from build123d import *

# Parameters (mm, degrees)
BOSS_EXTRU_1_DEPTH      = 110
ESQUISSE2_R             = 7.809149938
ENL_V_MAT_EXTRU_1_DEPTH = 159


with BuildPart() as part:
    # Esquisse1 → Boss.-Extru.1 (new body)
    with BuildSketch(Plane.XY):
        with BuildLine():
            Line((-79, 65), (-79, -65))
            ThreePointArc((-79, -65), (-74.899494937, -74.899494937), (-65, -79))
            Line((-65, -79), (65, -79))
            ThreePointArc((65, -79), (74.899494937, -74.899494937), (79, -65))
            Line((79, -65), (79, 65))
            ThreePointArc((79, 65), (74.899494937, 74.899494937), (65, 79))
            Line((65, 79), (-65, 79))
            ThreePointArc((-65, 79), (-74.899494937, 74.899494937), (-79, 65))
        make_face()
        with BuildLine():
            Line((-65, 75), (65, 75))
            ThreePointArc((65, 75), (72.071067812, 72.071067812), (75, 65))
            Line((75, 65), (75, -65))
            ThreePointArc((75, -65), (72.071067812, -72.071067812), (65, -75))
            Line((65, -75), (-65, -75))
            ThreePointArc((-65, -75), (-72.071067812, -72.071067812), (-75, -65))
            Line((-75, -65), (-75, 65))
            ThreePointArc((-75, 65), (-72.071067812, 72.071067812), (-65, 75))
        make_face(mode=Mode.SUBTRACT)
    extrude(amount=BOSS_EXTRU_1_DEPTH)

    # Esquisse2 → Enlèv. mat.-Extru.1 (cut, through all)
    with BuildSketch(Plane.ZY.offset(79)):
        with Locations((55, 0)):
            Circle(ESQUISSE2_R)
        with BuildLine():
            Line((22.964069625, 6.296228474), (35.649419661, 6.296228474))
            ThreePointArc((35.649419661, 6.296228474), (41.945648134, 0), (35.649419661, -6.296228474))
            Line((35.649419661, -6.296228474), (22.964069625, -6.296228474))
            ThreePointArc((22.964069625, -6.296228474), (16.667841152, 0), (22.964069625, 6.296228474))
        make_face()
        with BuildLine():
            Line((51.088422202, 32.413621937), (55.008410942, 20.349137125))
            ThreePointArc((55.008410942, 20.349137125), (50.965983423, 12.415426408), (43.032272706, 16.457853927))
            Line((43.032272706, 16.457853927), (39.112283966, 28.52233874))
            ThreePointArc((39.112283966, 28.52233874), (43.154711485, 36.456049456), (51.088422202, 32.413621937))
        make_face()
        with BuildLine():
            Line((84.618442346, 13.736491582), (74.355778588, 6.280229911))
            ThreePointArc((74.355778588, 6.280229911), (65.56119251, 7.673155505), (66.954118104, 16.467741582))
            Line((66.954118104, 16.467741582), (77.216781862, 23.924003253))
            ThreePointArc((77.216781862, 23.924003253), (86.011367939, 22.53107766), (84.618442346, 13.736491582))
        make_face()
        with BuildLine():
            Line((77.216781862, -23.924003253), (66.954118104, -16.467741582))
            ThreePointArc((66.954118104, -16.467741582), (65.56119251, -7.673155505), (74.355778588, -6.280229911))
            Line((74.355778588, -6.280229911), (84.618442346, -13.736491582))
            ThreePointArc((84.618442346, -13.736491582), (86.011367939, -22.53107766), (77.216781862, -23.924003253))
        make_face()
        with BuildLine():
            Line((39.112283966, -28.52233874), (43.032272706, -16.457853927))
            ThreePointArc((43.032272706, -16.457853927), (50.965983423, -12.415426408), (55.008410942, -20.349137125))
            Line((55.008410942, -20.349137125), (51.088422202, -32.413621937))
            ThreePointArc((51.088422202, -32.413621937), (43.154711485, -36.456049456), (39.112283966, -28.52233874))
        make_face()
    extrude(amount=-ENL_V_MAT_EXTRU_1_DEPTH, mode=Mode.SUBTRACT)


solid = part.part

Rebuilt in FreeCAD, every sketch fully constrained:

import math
import FreeCAD as App
import Part
import Sketcher
Q = App.Units.Quantity

doc = App.newDocument("Part")
body = doc.addObject("PartDesign::Body", "Body")

sketch1 = body.newObject("Sketcher::SketchObject", "Sketch")
sketch1.AttachmentSupport = (doc.getObject("XY_Plane"), [""])
sketch1.MapMode = "FlatFace"
sketch1.addGeometry(Part.LineSegment(App.Vector(-79, 65, 0), App.Vector(-79, -65, 0)), False)
sketch1.addGeometry(Part.ArcOfCircle(Part.Circle(App.Vector(-65, -65, 0), App.Vector(0, 0, 1), 14), math.radians(180), math.radians(270)), False)
sketch1.addGeometry(Part.LineSegment(App.Vector(-65, -79, 0), App.Vector(65, -79, 0)), False)
sketch1.addGeometry(Part.ArcOfCircle(Part.Circle(App.Vector(65, -65, 0), App.Vector(0, 0, 1), 14), math.radians(-90), math.radians(0)), False)
sketch1.addGeometry(Part.LineSegment(App.Vector(79, -65, 0), App.Vector(79, 65, 0)), False)
sketch1.addGeometry(Part.ArcOfCircle(Part.Circle(App.Vector(65, 65, 0), App.Vector(0, 0, 1), 14), math.radians(0), math.radians(90)), False)
sketch1.addGeometry(Part.LineSegment(App.Vector(65, 79, 0), App.Vector(-65, 79, 0)), False)
sketch1.addGeometry(Part.ArcOfCircle(Part.Circle(App.Vector(-65, 65, 0), App.Vector(0, 0, 1), 14), math.radians(90), math.radians(180)), False)
sketch1.addGeometry(Part.ArcOfCircle(Part.Circle(App.Vector(-65, 65, 0), App.Vector(0, 0, 1), 10), math.radians(90), math.radians(180)), False)
sketch1.addGeometry(Part.LineSegment(App.Vector(-65, 75, 0), App.Vector(65, 75, 0)), False)
sketch1.addGeometry(Part.ArcOfCircle(Part.Circle(App.Vector(65, 65, 0), App.Vector(0, 0, 1), 10), math.radians(0), math.radians(90)), False)
sketch1.addGeometry(Part.LineSegment(App.Vector(75, 65, 0), App.Vector(75, -65, 0)), False)
sketch1.addGeometry(Part.ArcOfCircle(Part.Circle(App.Vector(65, -65, 0), App.Vector(0, 0, 1), 10), math.radians(-90), math.radians(0)), False)
sketch1.addGeometry(Part.LineSegment(App.Vector(65, -75, 0), App.Vector(-65, -75, 0)), False)
sketch1.addGeometry(Part.ArcOfCircle(Part.Circle(App.Vector(-65, -65, 0), App.Vector(0, 0, 1), 10), math.radians(180), math.radians(270)), False)
sketch1.addGeometry(Part.LineSegment(App.Vector(-75, -65, 0), App.Vector(-75, 65, 0)), False)
sketch1.addConstraint(Sketcher.Constraint("Tangent", 0, 2, 1, 1))
sketch1.addConstraint(Sketcher.Constraint("Tangent", 1, 2, 2, 1))
sketch1.addConstraint(Sketcher.Constraint("Tangent", 2, 2, 3, 1))
sketch1.addConstraint(Sketcher.Constraint("Tangent", 3, 2, 4, 1))
sketch1.addConstraint(Sketcher.Constraint("Tangent", 4, 2, 5, 1))
sketch1.addConstraint(Sketcher.Constraint("Tangent", 5, 2, 6, 1))
sketch1.addConstraint(Sketcher.Constraint("Tangent", 6, 2, 7, 1))
sketch1.addConstraint(Sketcher.Constraint("Tangent", 7, 2, 0, 1))
sketch1.addConstraint(Sketcher.Constraint("Tangent", 8, 1, 9, 1))
sketch1.addConstraint(Sketcher.Constraint("Tangent", 9, 2, 10, 2))
sketch1.addConstraint(Sketcher.Constraint("Tangent", 10, 1, 11, 1))
sketch1.addConstraint(Sketcher.Constraint("Tangent", 11, 2, 12, 2))
sketch1.addConstraint(Sketcher.Constraint("Tangent", 12, 1, 13, 1))
sketch1.addConstraint(Sketcher.Constraint("Tangent", 13, 2, 14, 2))
sketch1.addConstraint(Sketcher.Constraint("Tangent", 14, 1, 15, 1))
sketch1.addConstraint(Sketcher.Constraint("Tangent", 15, 2, 8, 2))
sketch1.addConstraint(Sketcher.Constraint("Vertical", 0))
sketch1.addConstraint(Sketcher.Constraint("Horizontal", 2))
sketch1.addConstraint(Sketcher.Constraint("Vertical", 4))
sketch1.addConstraint(Sketcher.Constraint("Horizontal", 6))
sketch1.addConstraint(Sketcher.Constraint("Horizontal", 9))
sketch1.addConstraint(Sketcher.Constraint("Vertical", 11))
sketch1.addConstraint(Sketcher.Constraint("Horizontal", 13))
sketch1.addConstraint(Sketcher.Constraint("Vertical", 15))
sketch1.addConstraint(Sketcher.Constraint("Coincident", 8, 3, 7, 3))
sketch1.addConstraint(Sketcher.Constraint("Coincident", 10, 3, 5, 3))
sketch1.addConstraint(Sketcher.Constraint("Coincident", 12, 3, 3, 3))
sketch1.addConstraint(Sketcher.Constraint("Equal", 1, 3))
sketch1.addConstraint(Sketcher.Constraint("Equal", 3, 5))
sketch1.addConstraint(Sketcher.Constraint("Equal", 5, 7))
sketch1.addConstraint(Sketcher.Constraint("Equal", 12, 14))
sketch1.addConstraint(Sketcher.Constraint("Symmetric", 1, 3, 5, 3, -1, 1))
sketch1.addConstraint(Sketcher.Constraint("Equal", 13, 0))
sketch1.addConstraint(Sketcher.Constraint("Radius", 1, 14.0))
sketch1.addConstraint(Sketcher.Constraint("Radius", 8, 10.0))
sketch1.addConstraint(Sketcher.Constraint("DistanceX", 2, 1, 2, 2, 130.0))
pad1 = body.newObject("PartDesign::Pad", "Pad")
pad1.Profile = sketch1
pad1.Length = 110

sketch2 = body.newObject("Sketcher::SketchObject", "Sketch001")
sketch2.AttachmentSupport = (doc.getObject("YZ_Plane"), [""])
sketch2.MapMode = "FlatFace"
sketch2.AttachmentOffset = App.Placement(App.Vector(0, 0, -79), App.Rotation())
sketch2.addGeometry(Part.Circle(App.Vector(0, 55, 0), App.Vector(0, 0, 1), 8), False)
sketch2.addGeometry(Part.LineSegment(App.Vector(6, 36, 0), App.Vector(6, 23, 0)), False)
sketch2.addGeometry(Part.ArcOfCircle(Part.Circle(App.Vector(0, 23, 0), App.Vector(0, 0, 1), 6), math.radians(-180), math.radians(0)), False)
sketch2.addGeometry(Part.LineSegment(App.Vector(-6, 23, 0), App.Vector(-6, 36, 0)), False)
sketch2.addGeometry(Part.ArcOfCircle(Part.Circle(App.Vector(0, 36, 0), App.Vector(0, 0, 1), 6), math.radians(0), math.radians(180)), False)
sketch2.addGeometry(Part.LineSegment(App.Vector(20, 55, 0), App.Vector(32, 51, 0)), False)
sketch2.addGeometry(Part.ArcOfCircle(Part.Circle(App.Vector(30, 45, 0), App.Vector(0, 0, 1), 6), math.radians(-108), math.radians(72)), False)
sketch2.addGeometry(Part.LineSegment(App.Vector(29, 39, 0), App.Vector(16, 43, 0)), False)
sketch2.addGeometry(Part.ArcOfCircle(Part.Circle(App.Vector(18, 49, 0), App.Vector(0, 0, 1), 6), math.radians(72), math.radians(252)), False)
sketch2.addGeometry(Part.LineSegment(App.Vector(6, 74, 0), App.Vector(14, 85, 0)), False)
sketch2.addGeometry(Part.ArcOfCircle(Part.Circle(App.Vector(19, 81, 0), App.Vector(0, 0, 1), 6), math.radians(-36), math.radians(144)), False)
sketch2.addGeometry(Part.LineSegment(App.Vector(24, 77, 0), App.Vector(16, 67, 0)), False)
sketch2.addGeometry(Part.ArcOfCircle(Part.Circle(App.Vector(11, 71, 0), App.Vector(0, 0, 1), 6), math.radians(144), math.radians(324)), False)
sketch2.addGeometry(Part.LineSegment(App.Vector(-16, 67, 0), App.Vector(-24, 77, 0)), False)
sketch2.addGeometry(Part.ArcOfCircle(Part.Circle(App.Vector(-19, 81, 0), App.Vector(0, 0, 1), 6), math.radians(36), math.radians(216)), False)
sketch2.addGeometry(Part.LineSegment(App.Vector(-14, 85, 0), App.Vector(-6, 74, 0)), False)
sketch2.addGeometry(Part.ArcOfCircle(Part.Circle(App.Vector(-11, 71, 0), App.Vector(0, 0, 1), 6), math.radians(-144), math.radians(36)), False)
sketch2.addGeometry(Part.LineSegment(App.Vector(-16, 43, 0), App.Vector(-29, 39, 0)), False)
sketch2.addGeometry(Part.ArcOfCircle(Part.Circle(App.Vector(-30, 45, 0), App.Vector(0, 0, 1), 6), math.radians(108), math.radians(288)), False)
sketch2.addGeometry(Part.LineSegment(App.Vector(-32, 51, 0), App.Vector(-20, 55, 0)), False)
sketch2.addGeometry(Part.ArcOfCircle(Part.Circle(App.Vector(-18, 49, 0), App.Vector(0, 0, 1), 6), math.radians(-72), math.radians(108)), False)
sketch2.addConstraint(Sketcher.Constraint("Tangent", 1, 2, 2, 2))
sketch2.addConstraint(Sketcher.Constraint("Tangent", 2, 1, 3, 1))
sketch2.addConstraint(Sketcher.Constraint("Tangent", 3, 2, 4, 2))
sketch2.addConstraint(Sketcher.Constraint("Tangent", 4, 1, 1, 1))
sketch2.addConstraint(Sketcher.Constraint("Tangent", 5, 2, 6, 2))
sketch2.addConstraint(Sketcher.Constraint("Tangent", 6, 1, 7, 1))
sketch2.addConstraint(Sketcher.Constraint("Tangent", 7, 2, 8, 2))
sketch2.addConstraint(Sketcher.Constraint("Tangent", 8, 1, 5, 1))
sketch2.addConstraint(Sketcher.Constraint("Tangent", 9, 2, 10, 2))
sketch2.addConstraint(Sketcher.Constraint("Tangent", 10, 1, 11, 1))
sketch2.addConstraint(Sketcher.Constraint("Tangent", 11, 2, 12, 2))
sketch2.addConstraint(Sketcher.Constraint("Tangent", 12, 1, 9, 1))
sketch2.addConstraint(Sketcher.Constraint("Tangent", 13, 2, 14, 2))
sketch2.addConstraint(Sketcher.Constraint("Tangent", 14, 1, 15, 1))
sketch2.addConstraint(Sketcher.Constraint("Tangent", 15, 2, 16, 2))
sketch2.addConstraint(Sketcher.Constraint("Tangent", 16, 1, 13, 1))
sketch2.addConstraint(Sketcher.Constraint("Tangent", 17, 2, 18, 2))
sketch2.addConstraint(Sketcher.Constraint("Tangent", 18, 1, 19, 1))
sketch2.addConstraint(Sketcher.Constraint("Tangent", 19, 2, 20, 2))
sketch2.addConstraint(Sketcher.Constraint("Tangent", 20, 1, 17, 1))
sketch2.addConstraint(Sketcher.Constraint("Vertical", 1))
sketch2.addConstraint(Sketcher.Constraint("Vertical", 3))
sketch2.addConstraint(Sketcher.Constraint("Equal", 4, 6))
sketch2.addConstraint(Sketcher.Constraint("Equal", 6, 8))
sketch2.addConstraint(Sketcher.Constraint("Equal", 8, 10))
sketch2.addConstraint(Sketcher.Constraint("Equal", 10, 12))
sketch2.addConstraint(Sketcher.Constraint("Equal", 12, 14))
sketch2.addConstraint(Sketcher.Constraint("Equal", 14, 16))
sketch2.addConstraint(Sketcher.Constraint("Equal", 16, 18))
sketch2.addConstraint(Sketcher.Constraint("Equal", 18, 20))
sketch2.addConstraint(Sketcher.Constraint("Symmetric", 10, 3, 14, 3, -2))
sketch2.addConstraint(Sketcher.Constraint("Symmetric", 12, 3, 16, 3, -2))
sketch2.addConstraint(Sketcher.Constraint("Symmetric", 6, 3, 18, 3, -2))
sketch2.addConstraint(Sketcher.Constraint("Symmetric", 8, 3, 20, 3, -2))
sketch2.addConstraint(Sketcher.Constraint("PointOnObject", 0, 3, -2))
sketch2.addConstraint(Sketcher.Constraint("PointOnObject", 2, 3, -2))
sketch2.addConstraint(Sketcher.Constraint("Equal", 7, 9))
sketch2.addConstraint(Sketcher.Constraint("Angle", 5, Q("-18 deg")))
sketch2.addConstraint(Sketcher.Constraint("Angle", 9, Q("54 deg")))
sketch2.addConstraint(Sketcher.Constraint("DistanceY", -1, 1, 0, 3, 55.0))
sketch2.addConstraint(Sketcher.Constraint("Diameter", 0, 15.6183))
sketch2.addConstraint(Sketcher.Constraint("Radius", 2, 6.296228))
sketch2.addConstraint(Sketcher.Constraint("DistanceY", 1, 2, 1, 1, 12.68535))
sketch2.addConstraint(Sketcher.Constraint("DistanceX", 8, 1, 6, 1, 8.173202))
sketch2.addConstraint(Sketcher.Constraint("DistanceY", -1, 1, 2, 3, 22.96407))
sketch2.addConstraint(Sketcher.Constraint("DistanceX", -1, 1, 6, 3, 30.46798))
sketch2.addConstraint(Sketcher.Constraint("DistanceY", -1, 1, 8, 3, 49.020342))
sketch2.addConstraint(Sketcher.Constraint("DistanceY", -1, 1, 12, 3, 70.654948))
sketch2.addConstraint(Sketcher.Constraint("DistanceX", -1, 1, 9, 2, 13.736492))
pocket1 = body.newObject("PartDesign::Pocket", "Pocket")
pocket1.Profile = sketch2
pocket1.Type = "ThroughAll"
pocket1.Reversed = True

doc.recompute()
